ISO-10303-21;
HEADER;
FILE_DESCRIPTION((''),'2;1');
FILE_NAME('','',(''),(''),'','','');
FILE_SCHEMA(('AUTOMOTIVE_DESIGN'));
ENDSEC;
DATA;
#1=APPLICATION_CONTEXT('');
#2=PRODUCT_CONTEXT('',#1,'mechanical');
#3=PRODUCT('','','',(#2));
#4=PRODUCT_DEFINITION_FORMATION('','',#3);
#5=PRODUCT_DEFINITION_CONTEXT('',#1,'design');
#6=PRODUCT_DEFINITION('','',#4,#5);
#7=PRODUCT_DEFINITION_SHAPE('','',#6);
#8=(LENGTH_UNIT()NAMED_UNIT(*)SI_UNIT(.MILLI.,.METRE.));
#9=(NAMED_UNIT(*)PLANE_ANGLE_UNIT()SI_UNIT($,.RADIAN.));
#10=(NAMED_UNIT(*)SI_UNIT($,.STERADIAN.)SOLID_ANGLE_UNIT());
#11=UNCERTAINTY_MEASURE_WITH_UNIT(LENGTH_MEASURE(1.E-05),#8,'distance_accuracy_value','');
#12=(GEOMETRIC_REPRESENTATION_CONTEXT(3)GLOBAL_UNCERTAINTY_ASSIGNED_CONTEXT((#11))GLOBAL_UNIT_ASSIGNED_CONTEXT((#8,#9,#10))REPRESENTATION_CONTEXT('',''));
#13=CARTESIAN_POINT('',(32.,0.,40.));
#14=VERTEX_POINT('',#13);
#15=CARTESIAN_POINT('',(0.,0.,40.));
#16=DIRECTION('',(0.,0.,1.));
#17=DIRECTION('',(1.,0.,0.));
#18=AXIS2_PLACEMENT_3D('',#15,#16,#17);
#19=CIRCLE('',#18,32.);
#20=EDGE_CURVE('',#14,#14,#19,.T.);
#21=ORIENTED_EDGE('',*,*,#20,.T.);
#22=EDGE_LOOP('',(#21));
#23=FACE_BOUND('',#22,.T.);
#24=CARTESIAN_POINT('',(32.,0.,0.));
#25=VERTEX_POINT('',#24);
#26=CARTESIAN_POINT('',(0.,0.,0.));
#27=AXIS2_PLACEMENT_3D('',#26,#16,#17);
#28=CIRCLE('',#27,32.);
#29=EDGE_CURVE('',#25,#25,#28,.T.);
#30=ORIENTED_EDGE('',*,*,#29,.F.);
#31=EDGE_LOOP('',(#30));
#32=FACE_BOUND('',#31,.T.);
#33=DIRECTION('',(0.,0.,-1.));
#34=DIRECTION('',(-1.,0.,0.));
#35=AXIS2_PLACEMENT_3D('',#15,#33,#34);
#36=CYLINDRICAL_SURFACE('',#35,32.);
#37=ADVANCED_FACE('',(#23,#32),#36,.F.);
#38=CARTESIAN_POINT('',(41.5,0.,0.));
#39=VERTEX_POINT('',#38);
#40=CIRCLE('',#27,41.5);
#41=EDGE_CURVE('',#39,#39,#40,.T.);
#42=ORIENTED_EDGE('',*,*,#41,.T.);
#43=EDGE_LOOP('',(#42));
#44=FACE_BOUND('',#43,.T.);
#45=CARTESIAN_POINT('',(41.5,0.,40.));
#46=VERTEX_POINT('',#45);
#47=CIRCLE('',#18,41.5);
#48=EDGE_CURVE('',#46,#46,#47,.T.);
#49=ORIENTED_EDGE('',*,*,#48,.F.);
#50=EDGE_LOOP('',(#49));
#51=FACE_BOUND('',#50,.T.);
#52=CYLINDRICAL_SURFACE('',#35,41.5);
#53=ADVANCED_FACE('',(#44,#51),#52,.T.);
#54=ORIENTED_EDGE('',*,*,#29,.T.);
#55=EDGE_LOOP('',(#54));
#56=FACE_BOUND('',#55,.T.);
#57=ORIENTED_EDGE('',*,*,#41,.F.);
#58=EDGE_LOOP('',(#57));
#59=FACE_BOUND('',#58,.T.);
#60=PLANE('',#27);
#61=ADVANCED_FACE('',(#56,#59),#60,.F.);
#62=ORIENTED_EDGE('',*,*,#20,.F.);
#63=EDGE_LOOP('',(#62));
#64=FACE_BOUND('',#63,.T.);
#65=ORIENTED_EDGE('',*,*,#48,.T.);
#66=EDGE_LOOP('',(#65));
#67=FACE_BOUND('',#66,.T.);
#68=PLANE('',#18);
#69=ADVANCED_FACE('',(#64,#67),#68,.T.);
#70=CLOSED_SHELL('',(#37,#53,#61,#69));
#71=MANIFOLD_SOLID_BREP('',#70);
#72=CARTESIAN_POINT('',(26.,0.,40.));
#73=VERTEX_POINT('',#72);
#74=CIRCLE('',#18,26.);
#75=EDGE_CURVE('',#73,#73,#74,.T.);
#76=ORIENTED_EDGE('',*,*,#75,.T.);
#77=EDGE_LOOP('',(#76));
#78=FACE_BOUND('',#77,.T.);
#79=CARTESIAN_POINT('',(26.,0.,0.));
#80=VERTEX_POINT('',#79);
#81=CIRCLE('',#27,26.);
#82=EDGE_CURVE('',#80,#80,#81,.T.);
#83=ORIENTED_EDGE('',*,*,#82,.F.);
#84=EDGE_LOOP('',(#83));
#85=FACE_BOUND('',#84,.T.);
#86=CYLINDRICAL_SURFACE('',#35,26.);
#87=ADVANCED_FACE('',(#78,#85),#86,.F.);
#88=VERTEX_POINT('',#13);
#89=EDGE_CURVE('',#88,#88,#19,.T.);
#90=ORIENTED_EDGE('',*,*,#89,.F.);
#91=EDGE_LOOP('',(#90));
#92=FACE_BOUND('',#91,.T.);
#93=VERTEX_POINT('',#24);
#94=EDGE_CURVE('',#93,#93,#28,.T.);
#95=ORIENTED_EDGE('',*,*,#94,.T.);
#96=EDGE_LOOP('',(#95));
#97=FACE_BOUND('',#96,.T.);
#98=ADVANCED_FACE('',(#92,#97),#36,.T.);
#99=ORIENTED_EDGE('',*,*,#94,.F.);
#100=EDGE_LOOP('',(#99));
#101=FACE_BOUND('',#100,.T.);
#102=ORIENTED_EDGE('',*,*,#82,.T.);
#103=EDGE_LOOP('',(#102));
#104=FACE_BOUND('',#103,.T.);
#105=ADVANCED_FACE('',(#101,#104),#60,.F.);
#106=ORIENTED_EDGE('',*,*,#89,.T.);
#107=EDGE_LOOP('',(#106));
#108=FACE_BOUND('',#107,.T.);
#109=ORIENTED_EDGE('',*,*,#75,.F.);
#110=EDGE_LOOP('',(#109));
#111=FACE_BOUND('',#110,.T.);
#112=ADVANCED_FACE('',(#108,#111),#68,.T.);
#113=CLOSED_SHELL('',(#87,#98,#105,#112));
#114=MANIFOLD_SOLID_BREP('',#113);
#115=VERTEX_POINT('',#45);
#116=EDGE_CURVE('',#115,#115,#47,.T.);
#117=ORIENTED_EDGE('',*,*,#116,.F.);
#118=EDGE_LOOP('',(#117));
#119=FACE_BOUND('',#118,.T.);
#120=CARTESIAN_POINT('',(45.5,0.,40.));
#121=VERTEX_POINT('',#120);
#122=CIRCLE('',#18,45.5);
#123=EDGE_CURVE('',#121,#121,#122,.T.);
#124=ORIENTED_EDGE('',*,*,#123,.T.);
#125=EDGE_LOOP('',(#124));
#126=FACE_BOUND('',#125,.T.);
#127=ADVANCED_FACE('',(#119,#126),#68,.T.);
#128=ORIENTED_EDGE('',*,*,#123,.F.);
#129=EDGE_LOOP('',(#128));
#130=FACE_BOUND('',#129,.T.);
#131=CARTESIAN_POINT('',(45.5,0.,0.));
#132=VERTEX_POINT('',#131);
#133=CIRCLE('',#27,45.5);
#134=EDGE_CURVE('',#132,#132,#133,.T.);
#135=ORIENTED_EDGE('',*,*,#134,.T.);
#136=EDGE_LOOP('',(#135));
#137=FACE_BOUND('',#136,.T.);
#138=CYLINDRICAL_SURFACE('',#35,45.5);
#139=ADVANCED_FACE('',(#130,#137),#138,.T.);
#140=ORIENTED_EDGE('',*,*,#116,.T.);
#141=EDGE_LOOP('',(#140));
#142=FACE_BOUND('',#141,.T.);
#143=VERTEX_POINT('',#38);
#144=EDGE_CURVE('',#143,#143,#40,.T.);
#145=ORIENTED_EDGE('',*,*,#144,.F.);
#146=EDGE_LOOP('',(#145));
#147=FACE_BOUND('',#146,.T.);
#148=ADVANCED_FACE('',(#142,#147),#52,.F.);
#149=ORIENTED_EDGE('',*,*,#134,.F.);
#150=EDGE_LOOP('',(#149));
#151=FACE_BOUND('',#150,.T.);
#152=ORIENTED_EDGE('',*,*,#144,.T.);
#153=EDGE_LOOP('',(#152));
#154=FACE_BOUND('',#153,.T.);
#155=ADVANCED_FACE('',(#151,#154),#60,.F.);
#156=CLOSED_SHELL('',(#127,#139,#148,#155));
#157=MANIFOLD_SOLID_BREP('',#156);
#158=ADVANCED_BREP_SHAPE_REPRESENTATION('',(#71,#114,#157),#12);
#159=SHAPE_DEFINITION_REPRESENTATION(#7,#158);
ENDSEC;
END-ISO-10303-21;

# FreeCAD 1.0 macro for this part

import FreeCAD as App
import Part
import Sketcher

doc = App.newDocument("Part")
body = doc.addObject("PartDesign::Body", "Body")

sketch1 = body.newObject("Sketcher::SketchObject", "Sketch")
sketch1.AttachmentSupport = (doc.getObject("XY_Plane"), [""])
sketch1.MapMode = "FlatFace"
sketch1.addGeometry([
    Part.Circle(App.Vector(0, 0, 0), App.Vector(0, 0, 1), 46),
    Part.Circle(App.Vector(0, 0, 0), App.Vector(0, 0, 1), 42),
], False)
sketch1.addConstraint([
    Sketcher.Constraint("Coincident", 0, 3, -1, 1),
    Sketcher.Constraint("Coincident", 1, 3, -1, 1),
    Sketcher.Constraint("Diameter", 0, 91.0),
    Sketcher.Constraint("Diameter", 1, 83.0),
])
pad1 = body.newObject("PartDesign::Pad", "Pad")
pad1.Profile = sketch1
pad1.Length = 40
body2 = doc.addObject("PartDesign::Body", "Body001")

sketch2 = body2.newObject("Sketcher::SketchObject", "Sketch001")
sketch2.AttachmentSupport = (doc.getObject("XY_Plane001"), [""])
sketch2.MapMode = "FlatFace"
sketch2.addGeometry([
    Part.Circle(App.Vector(0, 0, 0), App.Vector(0, 0, 1), 32),
    Part.Circle(App.Vector(0, 0, 0), App.Vector(0, 0, 1), 26),
], False)
sketch2.addConstraint([
    Sketcher.Constraint("Coincident", 0, 3, -1, 1),
    Sketcher.Constraint("Coincident", 1, 3, -1, 1),
    Sketcher.Constraint("Diameter", 0, 64.0),
    Sketcher.Constraint("Diameter", 1, 52.0),
])
pad2 = body2.newObject("PartDesign::Pad", "Pad001")
pad2.Profile = sketch2
pad2.Length = 40
body3 = doc.addObject("PartDesign::Body", "Body002")

sketch3 = body3.newObject("Sketcher::SketchObject", "Sketch002")
sketch3.AttachmentSupport = (doc.getObject("XY_Plane002"), [""])
sketch3.MapMode = "FlatFace"
sketch3.addGeometry([
    Part.Circle(App.Vector(0, 0, 0), App.Vector(0, 0, 1), 42),
    Part.Circle(App.Vector(0, 0, 0), App.Vector(0, 0, 1), 32),
], False)
sketch3.addConstraint([
    Sketcher.Constraint("Coincident", 0, 3, -1, 1),
    Sketcher.Constraint("Coincident", 1, 3, -1, 1),
    Sketcher.Constraint("Diameter", 0, 83.0),
    Sketcher.Constraint("Diameter", 1, 64.0),
])
pad3 = body3.newObject("PartDesign::Pad", "Pad002")
pad3.Profile = sketch3
pad3.Length = 40

doc.recompute()
